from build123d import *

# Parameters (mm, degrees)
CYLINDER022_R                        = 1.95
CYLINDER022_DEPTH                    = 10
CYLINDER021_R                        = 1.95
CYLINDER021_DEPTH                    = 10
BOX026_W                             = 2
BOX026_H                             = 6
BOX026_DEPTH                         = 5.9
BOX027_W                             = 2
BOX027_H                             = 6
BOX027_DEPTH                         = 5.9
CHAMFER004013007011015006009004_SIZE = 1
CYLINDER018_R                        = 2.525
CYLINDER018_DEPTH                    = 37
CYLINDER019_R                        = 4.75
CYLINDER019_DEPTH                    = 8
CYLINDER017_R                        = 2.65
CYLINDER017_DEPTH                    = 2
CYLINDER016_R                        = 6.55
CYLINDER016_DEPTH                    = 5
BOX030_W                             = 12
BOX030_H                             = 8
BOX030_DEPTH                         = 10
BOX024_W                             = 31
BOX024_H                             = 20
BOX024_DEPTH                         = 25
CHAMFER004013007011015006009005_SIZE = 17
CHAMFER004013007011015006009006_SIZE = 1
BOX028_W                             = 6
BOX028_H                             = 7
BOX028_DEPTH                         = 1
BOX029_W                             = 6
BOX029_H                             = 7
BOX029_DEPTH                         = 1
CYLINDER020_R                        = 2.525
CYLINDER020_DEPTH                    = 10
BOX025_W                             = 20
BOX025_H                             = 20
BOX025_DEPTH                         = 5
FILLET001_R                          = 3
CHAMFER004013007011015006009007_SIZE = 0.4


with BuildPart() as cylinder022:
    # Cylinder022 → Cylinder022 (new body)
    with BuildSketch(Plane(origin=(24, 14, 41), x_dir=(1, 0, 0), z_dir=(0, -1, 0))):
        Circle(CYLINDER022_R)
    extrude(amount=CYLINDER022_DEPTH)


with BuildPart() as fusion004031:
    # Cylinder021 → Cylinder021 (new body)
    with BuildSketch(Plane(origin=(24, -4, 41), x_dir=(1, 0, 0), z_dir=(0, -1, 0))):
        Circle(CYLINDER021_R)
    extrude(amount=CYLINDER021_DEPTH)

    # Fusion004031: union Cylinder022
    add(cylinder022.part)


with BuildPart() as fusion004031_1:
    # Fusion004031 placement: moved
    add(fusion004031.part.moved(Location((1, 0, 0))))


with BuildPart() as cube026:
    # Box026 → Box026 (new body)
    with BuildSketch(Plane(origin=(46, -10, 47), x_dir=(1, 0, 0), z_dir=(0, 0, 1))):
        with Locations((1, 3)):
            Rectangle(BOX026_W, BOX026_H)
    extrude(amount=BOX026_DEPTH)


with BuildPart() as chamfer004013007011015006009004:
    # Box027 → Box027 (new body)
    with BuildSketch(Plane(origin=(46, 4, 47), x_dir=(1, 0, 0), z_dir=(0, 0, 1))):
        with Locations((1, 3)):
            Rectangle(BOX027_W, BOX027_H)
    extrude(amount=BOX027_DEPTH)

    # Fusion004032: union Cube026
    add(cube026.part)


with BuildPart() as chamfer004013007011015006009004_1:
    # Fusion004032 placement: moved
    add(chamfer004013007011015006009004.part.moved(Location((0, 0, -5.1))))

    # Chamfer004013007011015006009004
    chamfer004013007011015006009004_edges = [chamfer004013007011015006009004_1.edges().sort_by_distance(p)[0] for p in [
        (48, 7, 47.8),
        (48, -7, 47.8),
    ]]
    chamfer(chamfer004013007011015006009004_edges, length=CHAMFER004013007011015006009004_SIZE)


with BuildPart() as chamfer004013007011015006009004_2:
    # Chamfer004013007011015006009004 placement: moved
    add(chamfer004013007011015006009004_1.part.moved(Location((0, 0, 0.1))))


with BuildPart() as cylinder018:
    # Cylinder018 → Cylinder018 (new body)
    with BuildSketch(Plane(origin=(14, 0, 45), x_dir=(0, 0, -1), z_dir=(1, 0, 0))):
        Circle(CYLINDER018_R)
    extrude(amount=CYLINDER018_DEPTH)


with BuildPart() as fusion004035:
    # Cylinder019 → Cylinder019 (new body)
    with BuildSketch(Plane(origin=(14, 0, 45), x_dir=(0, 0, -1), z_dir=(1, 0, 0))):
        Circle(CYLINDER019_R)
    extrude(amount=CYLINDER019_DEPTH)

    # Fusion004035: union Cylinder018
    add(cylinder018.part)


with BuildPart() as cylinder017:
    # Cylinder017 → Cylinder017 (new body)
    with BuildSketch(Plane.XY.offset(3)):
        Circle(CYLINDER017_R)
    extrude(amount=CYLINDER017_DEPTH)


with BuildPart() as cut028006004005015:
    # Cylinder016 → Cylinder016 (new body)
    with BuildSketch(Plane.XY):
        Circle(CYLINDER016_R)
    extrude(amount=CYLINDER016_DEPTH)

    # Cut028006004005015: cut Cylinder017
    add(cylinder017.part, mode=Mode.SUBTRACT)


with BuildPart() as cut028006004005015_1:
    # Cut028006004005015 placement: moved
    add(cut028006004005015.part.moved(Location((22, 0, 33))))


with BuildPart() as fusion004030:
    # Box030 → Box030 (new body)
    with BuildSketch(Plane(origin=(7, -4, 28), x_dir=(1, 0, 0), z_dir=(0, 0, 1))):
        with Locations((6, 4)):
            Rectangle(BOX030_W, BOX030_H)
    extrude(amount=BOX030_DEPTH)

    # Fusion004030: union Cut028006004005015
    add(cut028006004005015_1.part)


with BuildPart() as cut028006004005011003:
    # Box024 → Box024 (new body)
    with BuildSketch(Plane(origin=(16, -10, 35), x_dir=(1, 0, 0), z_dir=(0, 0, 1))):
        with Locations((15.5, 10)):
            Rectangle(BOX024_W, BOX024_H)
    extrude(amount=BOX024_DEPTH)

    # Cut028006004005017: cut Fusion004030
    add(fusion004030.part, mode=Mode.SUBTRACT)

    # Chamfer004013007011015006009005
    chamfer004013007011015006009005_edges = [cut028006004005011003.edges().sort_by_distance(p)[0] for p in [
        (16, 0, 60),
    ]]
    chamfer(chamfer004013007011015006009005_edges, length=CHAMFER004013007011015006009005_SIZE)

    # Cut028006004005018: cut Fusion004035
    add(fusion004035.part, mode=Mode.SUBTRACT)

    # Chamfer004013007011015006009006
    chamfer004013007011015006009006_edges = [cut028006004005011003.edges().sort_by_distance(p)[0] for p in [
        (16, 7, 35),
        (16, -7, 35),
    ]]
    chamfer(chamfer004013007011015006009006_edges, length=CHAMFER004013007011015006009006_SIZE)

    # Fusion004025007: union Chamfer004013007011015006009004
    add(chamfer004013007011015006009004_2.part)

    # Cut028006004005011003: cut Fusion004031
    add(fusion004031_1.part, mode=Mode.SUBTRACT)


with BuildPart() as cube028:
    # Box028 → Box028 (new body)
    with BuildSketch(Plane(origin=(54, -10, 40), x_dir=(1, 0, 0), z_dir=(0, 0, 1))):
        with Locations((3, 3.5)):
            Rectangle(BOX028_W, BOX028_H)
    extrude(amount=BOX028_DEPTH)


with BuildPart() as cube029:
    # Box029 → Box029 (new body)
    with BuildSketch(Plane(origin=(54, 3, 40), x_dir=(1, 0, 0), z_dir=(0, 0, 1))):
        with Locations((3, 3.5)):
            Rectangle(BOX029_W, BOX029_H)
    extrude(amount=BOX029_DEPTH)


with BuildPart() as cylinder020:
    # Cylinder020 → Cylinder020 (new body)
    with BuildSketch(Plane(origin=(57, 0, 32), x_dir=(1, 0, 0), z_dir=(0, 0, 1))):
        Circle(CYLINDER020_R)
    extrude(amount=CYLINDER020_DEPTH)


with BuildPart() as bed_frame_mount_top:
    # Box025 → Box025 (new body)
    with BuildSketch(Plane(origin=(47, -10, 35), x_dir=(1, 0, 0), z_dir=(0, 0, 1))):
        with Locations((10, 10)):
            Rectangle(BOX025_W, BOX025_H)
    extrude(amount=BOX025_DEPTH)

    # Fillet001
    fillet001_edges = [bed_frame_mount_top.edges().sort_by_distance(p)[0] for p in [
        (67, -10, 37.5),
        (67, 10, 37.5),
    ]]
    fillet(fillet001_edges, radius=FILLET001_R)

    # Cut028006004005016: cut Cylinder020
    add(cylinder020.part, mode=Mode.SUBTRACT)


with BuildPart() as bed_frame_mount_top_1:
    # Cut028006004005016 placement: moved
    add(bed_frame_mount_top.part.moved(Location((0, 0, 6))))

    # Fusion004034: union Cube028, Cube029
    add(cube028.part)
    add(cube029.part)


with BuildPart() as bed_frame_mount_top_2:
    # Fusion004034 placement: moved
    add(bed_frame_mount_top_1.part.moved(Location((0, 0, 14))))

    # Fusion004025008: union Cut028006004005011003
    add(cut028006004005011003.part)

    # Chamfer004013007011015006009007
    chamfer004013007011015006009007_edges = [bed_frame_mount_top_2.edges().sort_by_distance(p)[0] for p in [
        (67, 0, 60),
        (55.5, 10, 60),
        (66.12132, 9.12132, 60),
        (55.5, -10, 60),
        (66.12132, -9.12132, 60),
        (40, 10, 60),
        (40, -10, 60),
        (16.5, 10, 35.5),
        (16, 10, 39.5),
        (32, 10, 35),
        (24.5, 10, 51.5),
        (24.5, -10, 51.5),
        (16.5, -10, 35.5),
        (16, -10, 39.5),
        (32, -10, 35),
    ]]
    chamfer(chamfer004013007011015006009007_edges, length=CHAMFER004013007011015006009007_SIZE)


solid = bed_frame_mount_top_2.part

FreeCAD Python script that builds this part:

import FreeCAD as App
import Part
import Sketcher

V = App.Vector


def edges_at(feature, points):
    """Names of the edges that pass closest to the given points."""
    edges = feature.Shape.Edges
    near = lambda p: min(range(len(edges)), key=lambda i: edges[i].distToShape(Part.Vertex(*p))[0])
    return sorted({f"Edge{near(p) + 1}" for p in points})


def add_polygon(sketch, points):
    """Adds a closed chain of lines whose ends are joined by coincident constraints."""
    first, n = sketch.GeometryCount, len(points)
    for a, b in zip(points, points[1:] + points[:1]):
        sketch.addGeometry(Part.LineSegment(App.Vector(*a, 0), App.Vector(*b, 0)), False)
    for i in range(n):
        sketch.addConstraint(Sketcher.Constraint("Coincident", first + i, 2, first + (i + 1) % n, 1))

doc = App.newDocument("Part")
params = doc.addObject("Spreadsheet::Sheet", "Params")
for row, (alias, value) in enumerate([
    ("sketch1_diameter", "3.9 mm"),
    ("pad1_length", "10 mm"),
    ("sketch2_diameter", "3.9 mm"),
    ("pad2_length", "10 mm"),
    ("sketch3_width", "2 mm"),
    ("sketch3_height", "6 mm"),
    ("pad3_length", "5.9 mm"),
    ("sketch4_width", "2 mm"),
    ("sketch4_height", "6 mm"),
    ("pad4_length", "5.9 mm"),
    ("chamfer_size", "1 mm"),
    ("sketch5_diameter", "5.05 mm"),
    ("pad5_length", "37 mm"),
    ("sketch6_diameter", "9.5 mm"),
    ("pad6_length", "8 mm"),
    ("sketch7_diameter", "5.3 mm"),
    ("pad7_length", "2 mm"),
    ("sketch8_diameter", "13.1 mm"),
    ("pad8_length", "5 mm"),
    ("sketch9_width", "12 mm"),
    ("sketch9_height", "8 mm"),
    ("pad9_length", "10 mm"),
    ("sketch10_width", "31 mm"),
    ("sketch10_height", "20 mm"),
    ("pad10_length", "25 mm"),
    ("chamfer2_size", "17 mm"),
    ("chamfer3_size", "1 mm"),
    ("sketch11_width", "6 mm"),
    ("sketch11_height", "7 mm"),
    ("pad11_length", "1 mm"),
    ("sketch12_width", "6 mm"),
    ("sketch12_height", "7 mm"),
    ("pad12_length", "1 mm"),
    ("sketch13_diameter", "5.05 mm"),
    ("pad13_length", "10 mm"),
    ("sketch14_width", "20 mm"),
    ("pad14_length", "5 mm"),
    ("fillet_radius", "3 mm"),
    ("chamfer4_size", "0.4 mm"),
], start=1):
    params.set(f"A{row}", alias)
    params.set(f"B{row}", "=" + value)
    params.setAlias(f"B{row}", alias)

body = doc.addObject("PartDesign::Body", "Body")

sketch1 = body.newObject("Sketcher::SketchObject", "Sketch")
sketch1.AttachmentSupport = (doc.getObject("XZ_Plane"), [""])
sketch1.MapMode = "FlatFace"
sketch1.AttachmentOffset = App.Placement(V(0, 0, -14), App.Rotation())
sketch1.addGeometry(Part.Circle(V(24, 41, 0), V(0, 0, 1), 1.9), False)
sketch1.addConstraint(Sketcher.Constraint("Diameter", 0, 3.9))
sketch1.addConstraint(Sketcher.Constraint("DistanceX", -1, 1, 0, 3, 24.0))
sketch1.addConstraint(Sketcher.Constraint("DistanceY", -1, 1, 0, 3, 41.0))
sketch1.setExpression("Constraints[0]", "Params.sketch1_diameter")
pad1 = body.newObject("PartDesign::Pad", "Pad")
pad1.Profile = sketch1
pad1.setExpression("Length", "Params.pad1_length")
body2 = doc.addObject("PartDesign::Body", "Body001")
body2.AllowCompound = True

sketch2 = body2.newObject("Sketcher::SketchObject", "Sketch001")
sketch2.AttachmentSupport = (doc.getObject("XZ_Plane001"), [""])
sketch2.MapMode = "FlatFace"
sketch2.AttachmentOffset = App.Placement(V(0, 0, 4), App.Rotation())
sketch2.addGeometry(Part.Circle(V(24, 41, 0), V(0, 0, 1), 1.9), False)
sketch2.addConstraint(Sketcher.Constraint("Diameter", 0, 3.9))
sketch2.addConstraint(Sketcher.Constraint("DistanceX", -1, 1, 0, 3, 24.0))
sketch2.addConstraint(Sketcher.Constraint("DistanceY", -1, 1, 0, 3, 41.0))
sketch2.setExpression("Constraints[0]", "Params.sketch2_diameter")
pad2 = body2.newObject("PartDesign::Pad", "Pad001")
pad2.Profile = sketch2
pad2.setExpression("Length", "Params.pad2_length")
doc.recompute()

boolean = body2.newObject("PartDesign::Boolean", "Boolean")
boolean.Type = "Fuse"
boolean.addObjects([body])
body3 = doc.addObject("PartDesign::Body", "Body002")
body3.AllowCompound = True
doc.recompute()

body2.Placement = App.Placement(V(1, 0, 0), App.Rotation(V(0, 0, 1), 0))
boolean2 = body3.newObject("PartDesign::Boolean", "Boolean001")
boolean2.Type = "Fuse"
boolean2.addObjects([body2])
body4 = doc.addObject("PartDesign::Body", "Body003")

sketch3 = body4.newObject("Sketcher::SketchObject", "Sketch002")
sketch3.AttachmentSupport = (doc.getObject("XY_Plane003"), [""])
sketch3.MapMode = "FlatFace"
sketch3.AttachmentOffset = App.Placement(V(0, 0, 47), App.Rotation())
add_polygon(sketch3, [(46, -4), (46, -10), (48, -10), (48, -4)])
sketch3.addConstraint(Sketcher.Constraint("Vertical", 0))
sketch3.addConstraint(Sketcher.Constraint("Horizontal", 1))
sketch3.addConstraint(Sketcher.Constraint("Vertical", 2))
sketch3.addConstraint(Sketcher.Constraint("Horizontal", 3))
sketch3.addConstraint(Sketcher.Constraint("DistanceX", 1, 1, 1, 2, 2.0))
sketch3.addConstraint(Sketcher.Constraint("DistanceY", 0, 2, 0, 1, 6.0))
sketch3.addConstraint(Sketcher.Constraint("DistanceX", -1, 1, 0, 2, 46.0))
sketch3.addConstraint(Sketcher.Constraint("DistanceY", 0, 2, -1, 1, 10.0))
sketch3.setExpression("Constraints[8]", "Params.sketch3_width")
sketch3.setExpression("Constraints[9]", "Params.sketch3_height")
pad3 = body4.newObject("PartDesign::Pad", "Pad002")
pad3.Profile = sketch3
pad3.setExpression("Length", "Params.pad3_length")
body5 = doc.addObject("PartDesign::Body", "Body004")
body5.AllowCompound = True

sketch4 = body5.newObject("Sketcher::SketchObject", "Sketch003")
sketch4.AttachmentSupport = (doc.getObject("XY_Plane004"), [""])
sketch4.MapMode = "FlatFace"
sketch4.AttachmentOffset = App.Placement(V(0, 0, 47), App.Rotation())
add_polygon(sketch4, [(46, 10), (46, 4), (48, 4), (48, 10)])
sketch4.addConstraint(Sketcher.Constraint("Vertical", 0))
sketch4.addConstraint(Sketcher.Constraint("Horizontal", 1))
sketch4.addConstraint(Sketcher.Constraint("Vertical", 2))
sketch4.addConstraint(Sketcher.Constraint("Horizontal", 3))
sketch4.addConstraint(Sketcher.Constraint("DistanceX", 1, 1, 1, 2, 2.0))
sketch4.addConstraint(Sketcher.Constraint("DistanceY", 0, 2, 0, 1, 6.0))
sketch4.addConstraint(Sketcher.Constraint("DistanceX", -1, 1, 0, 2, 46.0))
sketch4.addConstraint(Sketcher.Constraint("DistanceY", -1, 1, 0, 2, 4.0))
sketch4.setExpression("Constraints[8]", "Params.sketch4_width")
sketch4.setExpression("Constraints[9]", "Params.sketch4_height")
pad4 = body5.newObject("PartDesign::Pad", "Pad003")
pad4.Profile = sketch4
pad4.setExpression("Length", "Params.pad4_length")
doc.recompute()

boolean3 = body5.newObject("PartDesign::Boolean", "Boolean002")
boolean3.Type = "Fuse"
boolean3.addObjects([body4])
body6 = doc.addObject("PartDesign::Body", "Body005")
body6.AllowCompound = True
doc.recompute()

body5.Placement = App.Placement(V(0, 0, -5.1), App.Rotation(V(0, 0, 1), 0))
boolean4 = body6.newObject("PartDesign::Boolean", "Boolean003")
boolean4.Type = "Fuse"
boolean4.addObjects([body5])
doc.recompute()

chamfer = body6.newObject("PartDesign::Chamfer", "Chamfer")
chamfer.Base = (boolean4, edges_at(boolean4, [(48, 7, 47.8), (48, -7, 47.8)]))
chamfer.setExpression("Size", "Params.chamfer_size")
body7 = doc.addObject("PartDesign::Body", "Body006")
body7.AllowCompound = True
doc.recompute()

body6.Placement = App.Placement(V(0, 0, 0.1), App.Rotation(V(0, 0, 1), 0))
boolean5 = body7.newObject("PartDesign::Boolean", "Boolean004")
boolean5.Type = "Fuse"
boolean5.addObjects([body6])
body8 = doc.addObject("PartDesign::Body", "Body007")

sketch5 = body8.newObject("Sketcher::SketchObject", "Sketch004")
sketch5.AttachmentSupport = (doc.getObject("YZ_Plane007"), [""])
sketch5.MapMode = "FlatFace"
sketch5.AttachmentOffset = App.Placement(V(0, 0, 14), App.Rotation())
sketch5.addGeometry(Part.Circle(V(0, 45, 0), V(0, 0, 1), 2.5), False)
sketch5.addConstraint(Sketcher.Constraint("PointOnObject", 0, 3, -2))
sketch5.addConstraint(Sketcher.Constraint("Diameter", 0, 5.05))
sketch5.addConstraint(Sketcher.Constraint("DistanceY", -1, 1, 0, 3, 45.0))
sketch5.setExpression("Constraints[1]", "Params.sketch5_diameter")
pad5 = body8.newObject("PartDesign::Pad", "Pad004")
pad5.Profile = sketch5
pad5.setExpression("Length", "Params.pad5_length")
body9 = doc.addObject("PartDesign::Body", "Body008")

sketch6 = body9.newObject("Sketcher::SketchObject", "Sketch005")
sketch6.AttachmentSupport = (doc.getObject("YZ_Plane008"), [""])
sketch6.MapMode = "FlatFace"
sketch6.AttachmentOffset = App.Placement(V(0, 0, 14), App.Rotation())
sketch6.addGeometry(Part.Circle(V(0, 45, 0), V(0, 0, 1), 4.8), False)
sketch6.addConstraint(Sketcher.Constraint("PointOnObject", 0, 3, -2))
sketch6.addConstraint(Sketcher.Constraint("Diameter", 0, 9.5))
sketch6.addConstraint(Sketcher.Constraint("DistanceY", -1, 1, 0, 3, 45.0))
sketch6.setExpression("Constraints[1]", "Params.sketch6_diameter")
pad6 = body9.newObject("PartDesign::Pad", "Pad005")
pad6.Profile = sketch6
pad6.setExpression("Length", "Params.pad6_length")
doc.recompute()

boolean6 = body9.newObject("PartDesign::Boolean", "Boolean005")
boolean6.Type = "Fuse"
boolean6.addObjects([body8])
body10 = doc.addObject("PartDesign::Body", "Body009")

sketch7 = body10.newObject("Sketcher::SketchObject", "Sketch006")
sketch7.AttachmentSupport = (doc.getObject("XY_Plane009"), [""])
sketch7.MapMode = "FlatFace"
sketch7.AttachmentOffset = App.Placement(V(0, 0, 3), App.Rotation())
sketch7.addGeometry(Part.Circle(V(0, 0, 0), V(0, 0, 1), 2.6), False)
sketch7.addConstraint(Sketcher.Constraint("Coincident", 0, 3, -1, 1))
sketch7.addConstraint(Sketcher.Constraint("Diameter", 0, 5.3))
sketch7.setExpression("Constraints[1]", "Params.sketch7_diameter")
pad7 = body10.newObject("PartDesign::Pad", "Pad006")
pad7.Profile = sketch7
pad7.setExpression("Length", "Params.pad7_length")
body11 = doc.addObject("PartDesign::Body", "Body010")

sketch8 = body11.newObject("Sketcher::SketchObject", "Sketch007")
sketch8.AttachmentSupport = (doc.getObject("XY_Plane010"), [""])
sketch8.MapMode = "FlatFace"
sketch8.addGeometry(Part.Circle(V(0, 0, 0), V(0, 0, 1), 7), False)
sketch8.addConstraint(Sketcher.Constraint("Coincident", 0, 3, -1, 1))
sketch8.addConstraint(Sketcher.Constraint("Diameter", 0, 13.1))
sketch8.setExpression("Constraints[1]", "Params.sketch8_diameter")
pad8 = body11.newObject("PartDesign::Pad", "Pad007")
pad8.Profile = sketch8
pad8.setExpression("Length", "Params.pad8_length")
doc.recompute()

boolean7 = body11.newObject("PartDesign::Boolean", "Boolean006")
boolean7.Type = "Cut"
boolean7.addObjects([body10])
body12 = doc.addObject("PartDesign::Body", "Body011")
doc.recompute()

body11.Placement = App.Placement(V(22, 0, 33), App.Rotation(V(0, 0, 1), 0))
boolean8 = body12.newObject("PartDesign::Boolean", "Boolean007")
boolean8.Type = "Fuse"
boolean8.addObjects([body11])
body13 = doc.addObject("PartDesign::Body", "Body012")

sketch9 = body13.newObject("Sketcher::SketchObject", "Sketch008")
sketch9.AttachmentSupport = (doc.getObject("XY_Plane012"), [""])
sketch9.MapMode = "FlatFace"
sketch9.AttachmentOffset = App.Placement(V(0, 0, 28), App.Rotation())
add_polygon(sketch9, [(7, 4), (7, -4), (19, -4), (19, 4)])
sketch9.addConstraint(Sketcher.Constraint("Vertical", 0))
sketch9.addConstraint(Sketcher.Constraint("Horizontal", 1))
sketch9.addConstraint(Sketcher.Constraint("Vertical", 2))
sketch9.addConstraint(Sketcher.Constraint("Horizontal", 3))
sketch9.addConstraint(Sketcher.Constraint("DistanceX", 1, 1, 1, 2, 12.0))
sketch9.addConstraint(Sketcher.Constraint("DistanceY", 0, 2, 0, 1, 8.0))
sketch9.addConstraint(Sketcher.Constraint("DistanceX", -1, 1, 0, 2, 7.0))
sketch9.addConstraint(Sketcher.Constraint("DistanceY", 0, 2, -1, 1, 4.0))
sketch9.setExpression("Constraints[8]", "Params.sketch9_width")
sketch9.setExpression("Constraints[9]", "Params.sketch9_height")
pad9 = body13.newObject("PartDesign::Pad", "Pad008")
pad9.Profile = sketch9
pad9.setExpression("Length", "Params.pad9_length")
doc.recompute()

boolean9 = body13.newObject("PartDesign::Boolean", "Boolean008")
boolean9.Type = "Fuse"
boolean9.addObjects([body12])
body14 = doc.addObject("PartDesign::Body", "Body013")

sketch10 = body14.newObject("Sketcher::SketchObject", "Sketch009")
sketch10.AttachmentSupport = (doc.getObject("XY_Plane013"), [""])
sketch10.MapMode = "FlatFace"
sketch10.AttachmentOffset = App.Placement(V(0, 0, 35), App.Rotation())
add_polygon(sketch10, [(16, 10), (16, -10), (47, -10), (47, 10)])
sketch10.addConstraint(Sketcher.Constraint("Vertical", 0))
sketch10.addConstraint(Sketcher.Constraint("Horizontal", 1))
sketch10.addConstraint(Sketcher.Constraint("Vertical", 2))
sketch10.addConstraint(Sketcher.Constraint("Horizontal", 3))
sketch10.addConstraint(Sketcher.Constraint("DistanceX", 1, 1, 1, 2, 31.0))
sketch10.addConstraint(Sketcher.Constraint("DistanceY", 0, 2, 0, 1, 20.0))
sketch10.addConstraint(Sketcher.Constraint("DistanceX", -1, 1, 0, 2, 16.0))
sketch10.addConstraint(Sketcher.Constraint("DistanceY", 0, 2, -1, 1, 10.0))
sketch10.setExpression("Constraints[8]", "Params.sketch10_width")
sketch10.setExpression("Constraints[9]", "Params.sketch10_height")
pad10 = body14.newObject("PartDesign::Pad", "Pad009")
pad10.Profile = sketch10
pad10.setExpression("Length", "Params.pad10_length")
doc.recompute()

boolean10 = body14.newObject("PartDesign::Boolean", "Boolean009")
boolean10.Type = "Cut"
boolean10.addObjects([body13])
doc.recompute()

chamfer2 = body14.newObject("PartDesign::Chamfer", "Chamfer001")
chamfer2.Base = (boolean10, edges_at(boolean10, [(16, 0, 60)]))
chamfer2.setExpression("Size", "Params.chamfer2_size")
doc.recompute()

boolean11 = body14.newObject("PartDesign::Boolean", "Boolean010")
boolean11.Type = "Cut"
boolean11.addObjects([body9])
doc.recompute()

chamfer3 = body14.newObject("PartDesign::Chamfer", "Chamfer002")
chamfer3.Base = (boolean11, edges_at(boolean11, [(16, 7, 35), (16, -7, 35)]))
chamfer3.setExpression("Size", "Params.chamfer3_size")
doc.recompute()

boolean12 = body14.newObject("PartDesign::Boolean", "Boolean011")
boolean12.Type = "Fuse"
boolean12.addObjects([body7])
doc.recompute()

boolean13 = body14.newObject("PartDesign::Boolean", "Boolean012")
boolean13.Type = "Cut"
boolean13.addObjects([body3])
body15 = doc.addObject("PartDesign::Body", "Body014")

sketch11 = body15.newObject("Sketcher::SketchObject", "Sketch010")
sketch11.AttachmentSupport = (doc.getObject("XY_Plane014"), [""])
sketch11.MapMode = "FlatFace"
sketch11.AttachmentOffset = App.Placement(V(0, 0, 40), App.Rotation())
add_polygon(sketch11, [(54, -3), (54, -10), (60, -10), (60, -3)])
sketch11.addConstraint(Sketcher.Constraint("Vertical", 0))
sketch11.addConstraint(Sketcher.Constraint("Horizontal", 1))
sketch11.addConstraint(Sketcher.Constraint("Vertical", 2))
sketch11.addConstraint(Sketcher.Constraint("Horizontal", 3))
sketch11.addConstraint(Sketcher.Constraint("DistanceX", 1, 1, 1, 2, 6.0))
sketch11.addConstraint(Sketcher.Constraint("DistanceY", 0, 2, 0, 1, 7.0))
sketch11.addConstraint(Sketcher.Constraint("DistanceX", -1, 1, 0, 2, 54.0))
sketch11.addConstraint(Sketcher.Constraint("DistanceY", 0, 2, -1, 1, 10.0))
sketch11.setExpression("Constraints[8]", "Params.sketch11_width")
sketch11.setExpression("Constraints[9]", "Params.sketch11_height")
pad11 = body15.newObject("PartDesign::Pad", "Pad010")
pad11.Profile = sketch11
pad11.setExpression("Length", "Params.pad11_length")
body16 = doc.addObject("PartDesign::Body", "Body015")

sketch12 = body16.newObject("Sketcher::SketchObject", "Sketch011")
sketch12.AttachmentSupport = (doc.getObject("XY_Plane015"), [""])
sketch12.MapMode = "FlatFace"
sketch12.AttachmentOffset = App.Placement(V(0, 0, 40), App.Rotation())
add_polygon(sketch12, [(54, 10), (54, 3), (60, 3), (60, 10)])
sketch12.addConstraint(Sketcher.Constraint("Vertical", 0))
sketch12.addConstraint(Sketcher.Constraint("Horizontal", 1))
sketch12.addConstraint(Sketcher.Constraint("Vertical", 2))
sketch12.addConstraint(Sketcher.Constraint("Horizontal", 3))
sketch12.addConstraint(Sketcher.Constraint("DistanceX", 1, 1, 1, 2, 6.0))
sketch12.addConstraint(Sketcher.Constraint("DistanceY", 0, 2, 0, 1, 7.0))
sketch12.addConstraint(Sketcher.Constraint("DistanceX", -1, 1, 0, 2, 54.0))
sketch12.addConstraint(Sketcher.Constraint("DistanceY", -1, 1, 0, 2, 3.0))
sketch12.setExpression("Constraints[8]", "Params.sketch12_width")
sketch12.setExpression("Constraints[9]", "Params.sketch12_height")
pad12 = body16.newObject("PartDesign::Pad", "Pad011")
pad12.Profile = sketch12
pad12.setExpression("Length", "Params.pad12_length")
body17 = doc.addObject("PartDesign::Body", "Body016")

sketch13 = body17.newObject("Sketcher::SketchObject", "Sketch012")
sketch13.AttachmentSupport = (doc.getObject("XY_Plane016"), [""])
sketch13.MapMode = "FlatFace"
sketch13.AttachmentOffset = App.Placement(V(0, 0, 32), App.Rotation())
sketch13.addGeometry(Part.Circle(V(57, 0, 0), V(0, 0, 1), 2.5), False)
sketch13.addConstraint(Sketcher.Constraint("PointOnObject", 0, 3, -1))
sketch13.addConstraint(Sketcher.Constraint("Diameter", 0, 5.05))
sketch13.addConstraint(Sketcher.Constraint("DistanceX", -1, 1, 0, 3, 57.0))
sketch13.setExpression("Constraints[1]", "Params.sketch13_diameter")
pad13 = body17.newObject("PartDesign::Pad", "Pad012")
pad13.Profile = sketch13
pad13.setExpression("Length", "Params.pad13_length")
body18 = doc.addObject("PartDesign::Body", "Body017")

sketch14 = body18.newObject("Sketcher::SketchObject", "Sketch013")
sketch14.AttachmentSupport = (doc.getObject("XY_Plane017"), [""])
sketch14.MapMode = "FlatFace"
sketch14.AttachmentOffset = App.Placement(V(0, 0, 35), App.Rotation())
add_polygon(sketch14, [(47, 10), (47, -10), (67, -10), (67, 10)])
sketch14.addConstraint(Sketcher.Constraint("Vertical", 0))
sketch14.addConstraint(Sketcher.Constraint("Horizontal", 1))
sketch14.addConstraint(Sketcher.Constraint("Vertical", 2))
sketch14.addConstraint(Sketcher.Constraint("Horizontal", 3))
sketch14.addConstraint(Sketcher.Constraint("Equal", 3, 0))
sketch14.addConstraint(Sketcher.Constraint("DistanceX", 1, 1, 1, 2, 20.0))
sketch14.addConstraint(Sketcher.Constraint("DistanceX", -1, 1, 0, 2, 47.0))
sketch14.addConstraint(Sketcher.Constraint("DistanceY", 0, 2, -1, 1, 10.0))
sketch14.setExpression("Constraints[9]", "Params.sketch14_width")
pad14 = body18.newObject("PartDesign::Pad", "Pad013")
pad14.Profile = sketch14
pad14.setExpression("Length", "Params.pad14_length")
doc.recompute()

fillet = body18.newObject("PartDesign::Fillet", "Fillet")
fillet.Base = (pad14, edges_at(pad14, [(67, -10, 37.5), (67, 10, 37.5)]))
fillet.setExpression("Radius", "Params.fillet_radius")
doc.recompute()

boolean14 = body18.newObject("PartDesign::Boolean", "Boolean013")
boolean14.Type = "Cut"
boolean14.addObjects([body17])
body19 = doc.addObject("PartDesign::Body", "Body018")
doc.recompute()

body18.Placement = App.Placement(V(0, 0, 6), App.Rotation(V(0, 0, 1), 0))
boolean15 = body19.newObject("PartDesign::Boolean", "Boolean014")
boolean15.Type = "Fuse"
boolean15.addObjects([body18])
doc.recompute()

boolean16 = body19.newObject("PartDesign::Boolean", "Boolean015")
boolean16.Type = "Fuse"
boolean16.addObjects([body15])
doc.recompute()

boolean17 = body19.newObject("PartDesign::Boolean", "Boolean016")
boolean17.Type = "Fuse"
boolean17.addObjects([body16])
body20 = doc.addObject("PartDesign::Body", "Body019")
doc.recompute()

body19.Placement = App.Placement(V(0, 0, 14), App.Rotation(V(0, 0, 1), 0))
boolean18 = body20.newObject("PartDesign::Boolean", "Boolean017")
boolean18.Type = "Fuse"
boolean18.addObjects([body19])
doc.recompute()

boolean19 = body20.newObject("PartDesign::Boolean", "Boolean018")
boolean19.Type = "Fuse"
boolean19.addObjects([body14])
doc.recompute()

chamfer4 = body20.newObject("PartDesign::Chamfer", "Chamfer003")
chamfer4.Base = (boolean19, edges_at(boolean19, [
    (67, 0, 60),
    (48.5, 10, 60),
    (66.121, 9.121, 60),
    (48.5, -10, 60),
    (66.121, -9.121, 60),
    (48.5, 10, 60),
    (48.5, -10, 60),
    (16.5, 10, 35.5),
    (16, 10, 39.5),
    (32, 10, 35),
    (24.5, 10, 51.5),
    (24.5, -10, 51.5),
    (16.5, -10, 35.5),
    (16, -10, 39.5),
    (32, -10, 35),
]))
chamfer4.setExpression("Size", "Params.chamfer4_size")

doc.recompute()
